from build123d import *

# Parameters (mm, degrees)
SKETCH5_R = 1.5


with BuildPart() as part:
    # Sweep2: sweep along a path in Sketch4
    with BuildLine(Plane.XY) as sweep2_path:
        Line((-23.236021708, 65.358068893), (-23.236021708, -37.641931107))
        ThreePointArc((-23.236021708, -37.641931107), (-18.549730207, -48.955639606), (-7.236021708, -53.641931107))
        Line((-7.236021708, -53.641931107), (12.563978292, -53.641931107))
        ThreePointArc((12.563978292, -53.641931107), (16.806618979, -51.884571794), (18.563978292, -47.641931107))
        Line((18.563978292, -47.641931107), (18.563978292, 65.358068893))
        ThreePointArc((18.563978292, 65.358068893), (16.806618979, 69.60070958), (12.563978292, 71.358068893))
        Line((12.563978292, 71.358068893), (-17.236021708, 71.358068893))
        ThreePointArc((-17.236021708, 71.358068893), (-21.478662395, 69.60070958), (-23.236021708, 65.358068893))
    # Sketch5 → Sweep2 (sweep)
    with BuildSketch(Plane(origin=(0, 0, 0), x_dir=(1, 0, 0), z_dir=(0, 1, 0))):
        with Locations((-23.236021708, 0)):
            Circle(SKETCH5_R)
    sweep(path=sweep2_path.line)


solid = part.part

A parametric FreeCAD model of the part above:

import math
import FreeCAD as App
import Part
import Sketcher

V = App.Vector
Q = App.Units.Quantity

doc = App.newDocument("Part")
body = doc.addObject("PartDesign::Body", "Body")

# Sketch on XZ plane
sketch1 = body.newObject("Sketcher::SketchObject", "Sketch")
sketch1.AttachmentSupport = (doc.getObject("XZ_Plane"), [""])
sketch1.MapMode = "FlatFace"
sketch1.addGeometry(Part.Circle(V(-23.2, 0, 0), V(0, 0, 1), 1.5), False)
sketch1.addConstraint(Sketcher.Constraint("PointOnObject", 0, 3, -1))
sketch1.addConstraint(Sketcher.Constraint("Diameter", 0, Q("3 mm")))
sketch1.addConstraint(Sketcher.Constraint("DistanceX", 0, 3, -1, 1, Q("23.236022 mm")))

# Sketch on XY plane
sketch2 = body.newObject("Sketcher::SketchObject", "Sketch001")
sketch2.AttachmentSupport = (doc.getObject("XY_Plane"), [""])
sketch2.MapMode = "FlatFace"
sketch2.addGeometry(Part.LineSegment(V(-23, 65, 0), V(-23, -38, 0)), False)
sketch2.addGeometry(Part.ArcOfCircle(Part.Circle(V(-7, -38, 0), V(0, 0, 1), 16), math.radians(180), math.radians(270)), False)
sketch2.addGeometry(Part.LineSegment(V(-7, -54, 0), V(13, -54, 0)), False)
sketch2.addGeometry(Part.ArcOfCircle(Part.Circle(V(13, -48, 0), V(0, 0, 1), 6), math.radians(-90), math.radians(0)), False)
sketch2.addGeometry(Part.LineSegment(V(19, -48, 0), V(19, 65, 0)), False)
sketch2.addGeometry(Part.ArcOfCircle(Part.Circle(V(13, 65, 0), V(0, 0, 1), 6), math.radians(0), math.radians(90)), False)
sketch2.addGeometry(Part.LineSegment(V(13, 71, 0), V(-17, 71, 0)), False)
sketch2.addGeometry(Part.ArcOfCircle(Part.Circle(V(-17, 65, 0), V(0, 0, 1), 6), math.radians(90), math.radians(180)), False)
sketch2.addConstraint(Sketcher.Constraint("Tangent", 0, 2, 1, 1))
sketch2.addConstraint(Sketcher.Constraint("Tangent", 1, 2, 2, 1))
sketch2.addConstraint(Sketcher.Constraint("Tangent", 2, 2, 3, 1))
sketch2.addConstraint(Sketcher.Constraint("Tangent", 3, 2, 4, 1))
sketch2.addConstraint(Sketcher.Constraint("Tangent", 4, 2, 5, 1))
sketch2.addConstraint(Sketcher.Constraint("Tangent", 5, 2, 6, 1))
sketch2.addConstraint(Sketcher.Constraint("Tangent", 6, 2, 7, 1))
sketch2.addConstraint(Sketcher.Constraint("Tangent", 7, 2, 0, 1))
sketch2.addConstraint(Sketcher.Constraint("Vertical", 0))
sketch2.addConstraint(Sketcher.Constraint("Horizontal", 2))
sketch2.addConstraint(Sketcher.Constraint("Vertical", 4))
sketch2.addConstraint(Sketcher.Constraint("Horizontal", 6))
sketch2.addConstraint(Sketcher.Constraint("Equal", 3, 5))
sketch2.addConstraint(Sketcher.Constraint("Equal", 5, 7))
sketch2.addConstraint(Sketcher.Constraint("Radius", 1, Q("16 mm")))
sketch2.addConstraint(Sketcher.Constraint("Radius", 3, Q("6 mm")))
sketch2.addConstraint(Sketcher.Constraint("DistanceY", 0, 2, 0, 1, Q("103 mm")))
sketch2.addConstraint(Sketcher.Constraint("DistanceX", 2, 1, 2, 2, Q("19.8 mm")))
sketch2.addConstraint(Sketcher.Constraint("DistanceX", 1, 3, -1, 1, Q("7.236022 mm")))
sketch2.addConstraint(Sketcher.Constraint("DistanceY", 1, 3, -1, 1, Q("37.641931 mm")))
doc.recompute()

additivepipe = body.newObject("PartDesign::AdditivePipe", "AdditivePipe")
additivepipe.Profile = sketch1
additivepipe.Spine = (sketch2, ["Edge1", "Edge2", "Edge3", "Edge4", "Edge5", "Edge6", "Edge7", "Edge8"])

doc.recompute()
